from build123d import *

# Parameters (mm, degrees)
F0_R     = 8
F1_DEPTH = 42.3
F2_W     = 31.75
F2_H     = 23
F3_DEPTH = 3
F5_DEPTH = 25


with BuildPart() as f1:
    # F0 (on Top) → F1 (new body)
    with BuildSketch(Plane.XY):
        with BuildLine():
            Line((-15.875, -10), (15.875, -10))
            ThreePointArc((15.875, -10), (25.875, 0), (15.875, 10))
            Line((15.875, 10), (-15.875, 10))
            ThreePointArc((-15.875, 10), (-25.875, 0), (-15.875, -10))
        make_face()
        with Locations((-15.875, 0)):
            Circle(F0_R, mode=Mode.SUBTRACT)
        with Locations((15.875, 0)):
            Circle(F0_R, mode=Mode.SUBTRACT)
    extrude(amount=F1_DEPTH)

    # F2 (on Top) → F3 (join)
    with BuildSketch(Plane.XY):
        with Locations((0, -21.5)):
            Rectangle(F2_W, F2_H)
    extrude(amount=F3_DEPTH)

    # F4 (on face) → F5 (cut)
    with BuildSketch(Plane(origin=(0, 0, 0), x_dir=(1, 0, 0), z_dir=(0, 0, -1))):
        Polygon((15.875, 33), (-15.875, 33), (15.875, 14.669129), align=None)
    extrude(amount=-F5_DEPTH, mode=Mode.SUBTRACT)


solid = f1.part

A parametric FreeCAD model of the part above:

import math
import FreeCAD as App
import Part
import Sketcher
from FreeCAD import Vector
Q = App.Units.Quantity

doc = App.newDocument("Part")
params = doc.addObject("Spreadsheet::Sheet", "Params")
for row, (alias, value) in enumerate([
    ("sketch1_diameter", "16 mm"),
    ("sketch1_radius", "10 mm"),
    ("sketch1_width", "31.75 mm"),
    ("pad1_length", "42.3 mm"),
    ("sketch2_height", "23 mm"),
    ("sketch2_width", "31.75 mm"),
    ("pad2_length", "3 mm"),
    ("sketch3_width", "31.75 mm"),
    ("pocket1_length", "25 mm"),
], start=1):
    params.set(f"A{row}", alias)
    params.set(f"B{row}", "=" + value)
    params.setAlias(f"B{row}", alias)

body = doc.addObject("PartDesign::Body", "Body")

# Sketch on XY plane
sketch1 = body.newObject("Sketcher::SketchObject", "Sketch")
sketch1.AttachmentSupport = (doc.getObject("XY_Plane"), [""])
sketch1.MapMode = "FlatFace"
sketch1.addGeometry([
    Part.LineSegment(Vector(-16, -10, 0), Vector(16, -10, 0)),  # 0
    Part.ArcOfCircle(Part.Circle(Vector(16, 0, 0), Vector(0, 0, 1), 10), math.radians(-90), math.radians(90)),  # 1
    Part.LineSegment(Vector(16, 10, 0), Vector(-16, 10, 0)),  # 2
    Part.ArcOfCircle(Part.Circle(Vector(-16, 0, 0), Vector(0, 0, 1), 10), math.radians(90), math.radians(270)),  # 3
    Part.Circle(Vector(-16, 0, 0), Vector(0, 0, 1), 8),  # 4
    Part.Circle(Vector(16, 0, 0), Vector(0, 0, 1), 8),  # 5
], False)
sketch1.addConstraint([
    Sketcher.Constraint("Tangent", 0, 2, 1, 1),
    Sketcher.Constraint("Tangent", 1, 2, 2, 1),
    Sketcher.Constraint("Tangent", 2, 2, 3, 1),
    Sketcher.Constraint("Tangent", 3, 2, 0, 1),
    Sketcher.Constraint("Horizontal", 0),
    Sketcher.Constraint("Horizontal", 2),
    Sketcher.Constraint("Coincident", 4, 3, 3, 3),
    Sketcher.Constraint("Coincident", 5, 3, 1, 3),
    Sketcher.Constraint("Equal", 4, 5),
    Sketcher.Constraint("Symmetric", 1, 3, 3, 3, -1, 1),
    Sketcher.Constraint("Diameter", 4, Q("16 mm")),
    Sketcher.Constraint("Radius", 1, Q("10 mm")),
    Sketcher.Constraint("DistanceX", 0, 1, 0, 2, Q("31.75 mm")),
])
sketch1.setExpression("Constraints[10]", "Params.sketch1_diameter")
sketch1.setExpression("Constraints[11]", "Params.sketch1_radius")
sketch1.setExpression("Constraints[12]", "Params.sketch1_width")
pad1 = body.newObject("PartDesign::Pad", "Pad")
pad1.Profile = sketch1
pad1.setExpression("Length", "Params.pad1_length")

# Sketch on XY plane
sketch2 = body.newObject("Sketcher::SketchObject", "Sketch001")
sketch2.AttachmentSupport = (doc.getObject("XY_Plane"), [""])
sketch2.MapMode = "FlatFace"
sketch2.addGeometry([
    Part.LineSegment(Vector(-16, -10, 0), Vector(-16, -33, 0)),
    Part.LineSegment(Vector(-16, -33, 0), Vector(16, -33, 0)),
    Part.LineSegment(Vector(16, -33, 0), Vector(16, -10, 0)),
    Part.LineSegment(Vector(16, -10, 0), Vector(-16, -10, 0)),
], False)
sketch2.addConstraint([
    Sketcher.Constraint("Coincident", 0, 2, 1, 1),
    Sketcher.Constraint("Coincident", 1, 2, 2, 1),
    Sketcher.Constraint("Coincident", 2, 2, 3, 1),
    Sketcher.Constraint("Coincident", 3, 2, 0, 1),
    Sketcher.Constraint("Vertical", 0),
    Sketcher.Constraint("Horizontal", 1),
    Sketcher.Constraint("Vertical", 2),
    Sketcher.Constraint("Horizontal", 3),
    Sketcher.Constraint("DistanceY", 0, 2, 0, 1, Q("23 mm")),
    Sketcher.Constraint("DistanceY", 0, 2, -1, 1, Q("33 mm")),
    Sketcher.Constraint("DistanceX", 1, 1, 1, 2, Q("31.75 mm")),
    Sketcher.Constraint("DistanceX", 0, 2, -1, 1, Q("15.875 mm")),
])
sketch2.setExpression("Constraints[8]", "Params.sketch2_height")
sketch2.setExpression("Constraints[10]", "Params.sketch2_width")
pad2 = body.newObject("PartDesign::Pad", "Pad001")
pad2.Profile = sketch2
pad2.setExpression("Length", "Params.pad2_length")

# Sketch on XY plane
sketch3 = body.newObject("Sketcher::SketchObject", "Sketch002")
sketch3.AttachmentSupport = (doc.getObject("XY_Plane"), [""])
sketch3.MapMode = "FlatFace"
sketch3.addGeometry([
    Part.LineSegment(Vector(16, -33, 0), Vector(-16, -33, 0)),
    Part.LineSegment(Vector(-16, -33, 0), Vector(16, -15, 0)),
    Part.LineSegment(Vector(16, -15, 0), Vector(16, -33, 0)),
], False)
sketch3.addConstraint([
    Sketcher.Constraint("Coincident", 0, 2, 1, 1),
    Sketcher.Constraint("Coincident", 1, 2, 2, 1),
    Sketcher.Constraint("Coincident", 2, 2, 0, 1),
    Sketcher.Constraint("Horizontal", 0),
    Sketcher.Constraint("Vertical", 2),
    Sketcher.Constraint("Angle", 1, Q("30 deg")),
    Sketcher.Constraint("DistanceY", 0, 2, -1, 1, Q("33 mm")),
    Sketcher.Constraint("DistanceX", 0, 2, 0, 1, Q("31.75 mm")),
    Sketcher.Constraint("DistanceX", 0, 2, -1, 1, Q("15.875 mm")),
])
sketch3.setExpression("Constraints[7]", "Params.sketch3_width")
pocket1 = body.newObject("PartDesign::Pocket", "Pocket")
pocket1.Profile = sketch3
pocket1.setExpression("Length", "Params.pocket1_length")
pocket1.Reversed = True

doc.recompute()
